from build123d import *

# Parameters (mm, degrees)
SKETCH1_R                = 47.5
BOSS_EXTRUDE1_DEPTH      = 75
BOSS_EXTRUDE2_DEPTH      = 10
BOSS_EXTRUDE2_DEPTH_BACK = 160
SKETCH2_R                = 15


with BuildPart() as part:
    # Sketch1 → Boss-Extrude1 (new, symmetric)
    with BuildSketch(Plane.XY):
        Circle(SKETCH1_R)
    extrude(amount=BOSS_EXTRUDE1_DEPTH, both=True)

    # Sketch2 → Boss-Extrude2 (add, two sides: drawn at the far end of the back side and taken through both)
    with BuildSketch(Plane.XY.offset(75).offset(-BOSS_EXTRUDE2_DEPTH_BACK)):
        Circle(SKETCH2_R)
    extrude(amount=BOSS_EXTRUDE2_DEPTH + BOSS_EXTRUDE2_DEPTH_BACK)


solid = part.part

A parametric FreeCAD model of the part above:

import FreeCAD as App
import Part
import Sketcher

V = App.Vector

doc = App.newDocument("Part")
params = doc.addObject("Spreadsheet::Sheet", "Params")
for row, (alias, value) in enumerate([
    ("sketch1_diameter", "95 mm"),
    ("pad1_length", "150 mm"),
    ("sketch2_diameter", "30 mm"),
    ("pad2_length", "10 mm"),
    ("pad2_length2", "160 mm"),
], start=1):
    params.set(f"A{row}", alias)
    params.set(f"B{row}", "=" + value)
    params.setAlias(f"B{row}", alias)

body = doc.addObject("PartDesign::Body", "Body")

sketch1 = body.newObject("Sketcher::SketchObject", "Sketch")
sketch1.AttachmentSupport = (doc.getObject("XY_Plane"), [""])
sketch1.MapMode = "FlatFace"
sketch1.addGeometry(Part.Circle(V(0, 0, 0), V(0, 0, 1), 48), False)
sketch1.addConstraint([
    Sketcher.Constraint("Coincident", 0, 3, -1, 1),
    Sketcher.Constraint("Diameter", 0, 95.0),
])
sketch1.setExpression("Constraints[1]", "Params.sketch1_diameter")
pad1 = body.newObject("PartDesign::Pad", "Pad")
pad1.Profile = sketch1
pad1.setExpression("Length", "Params.pad1_length")
pad1.Midplane = True

sketch2 = body.newObject("Sketcher::SketchObject", "Sketch001")
sketch2.AttachmentSupport = (doc.getObject("XY_Plane"), [""])
sketch2.MapMode = "FlatFace"
sketch2.AttachmentOffset = App.Placement(V(0, 0, 75), App.Rotation())
sketch2.addGeometry(Part.Circle(V(0, 0, 0), V(0, 0, 1), 15), False)
sketch2.addConstraint([
    Sketcher.Constraint("Coincident", 0, 3, -1, 1),
    Sketcher.Constraint("Diameter", 0, 30.0),
])
sketch2.setExpression("Constraints[1]", "Params.sketch2_diameter")
pad2 = body.newObject("PartDesign::Pad", "Pad001")
pad2.Profile = sketch2
pad2.Type = "TwoLengths"
pad2.setExpression("Length", "Params.pad2_length")
pad2.setExpression("Length2", "Params.pad2_length2")

doc.recompute()
